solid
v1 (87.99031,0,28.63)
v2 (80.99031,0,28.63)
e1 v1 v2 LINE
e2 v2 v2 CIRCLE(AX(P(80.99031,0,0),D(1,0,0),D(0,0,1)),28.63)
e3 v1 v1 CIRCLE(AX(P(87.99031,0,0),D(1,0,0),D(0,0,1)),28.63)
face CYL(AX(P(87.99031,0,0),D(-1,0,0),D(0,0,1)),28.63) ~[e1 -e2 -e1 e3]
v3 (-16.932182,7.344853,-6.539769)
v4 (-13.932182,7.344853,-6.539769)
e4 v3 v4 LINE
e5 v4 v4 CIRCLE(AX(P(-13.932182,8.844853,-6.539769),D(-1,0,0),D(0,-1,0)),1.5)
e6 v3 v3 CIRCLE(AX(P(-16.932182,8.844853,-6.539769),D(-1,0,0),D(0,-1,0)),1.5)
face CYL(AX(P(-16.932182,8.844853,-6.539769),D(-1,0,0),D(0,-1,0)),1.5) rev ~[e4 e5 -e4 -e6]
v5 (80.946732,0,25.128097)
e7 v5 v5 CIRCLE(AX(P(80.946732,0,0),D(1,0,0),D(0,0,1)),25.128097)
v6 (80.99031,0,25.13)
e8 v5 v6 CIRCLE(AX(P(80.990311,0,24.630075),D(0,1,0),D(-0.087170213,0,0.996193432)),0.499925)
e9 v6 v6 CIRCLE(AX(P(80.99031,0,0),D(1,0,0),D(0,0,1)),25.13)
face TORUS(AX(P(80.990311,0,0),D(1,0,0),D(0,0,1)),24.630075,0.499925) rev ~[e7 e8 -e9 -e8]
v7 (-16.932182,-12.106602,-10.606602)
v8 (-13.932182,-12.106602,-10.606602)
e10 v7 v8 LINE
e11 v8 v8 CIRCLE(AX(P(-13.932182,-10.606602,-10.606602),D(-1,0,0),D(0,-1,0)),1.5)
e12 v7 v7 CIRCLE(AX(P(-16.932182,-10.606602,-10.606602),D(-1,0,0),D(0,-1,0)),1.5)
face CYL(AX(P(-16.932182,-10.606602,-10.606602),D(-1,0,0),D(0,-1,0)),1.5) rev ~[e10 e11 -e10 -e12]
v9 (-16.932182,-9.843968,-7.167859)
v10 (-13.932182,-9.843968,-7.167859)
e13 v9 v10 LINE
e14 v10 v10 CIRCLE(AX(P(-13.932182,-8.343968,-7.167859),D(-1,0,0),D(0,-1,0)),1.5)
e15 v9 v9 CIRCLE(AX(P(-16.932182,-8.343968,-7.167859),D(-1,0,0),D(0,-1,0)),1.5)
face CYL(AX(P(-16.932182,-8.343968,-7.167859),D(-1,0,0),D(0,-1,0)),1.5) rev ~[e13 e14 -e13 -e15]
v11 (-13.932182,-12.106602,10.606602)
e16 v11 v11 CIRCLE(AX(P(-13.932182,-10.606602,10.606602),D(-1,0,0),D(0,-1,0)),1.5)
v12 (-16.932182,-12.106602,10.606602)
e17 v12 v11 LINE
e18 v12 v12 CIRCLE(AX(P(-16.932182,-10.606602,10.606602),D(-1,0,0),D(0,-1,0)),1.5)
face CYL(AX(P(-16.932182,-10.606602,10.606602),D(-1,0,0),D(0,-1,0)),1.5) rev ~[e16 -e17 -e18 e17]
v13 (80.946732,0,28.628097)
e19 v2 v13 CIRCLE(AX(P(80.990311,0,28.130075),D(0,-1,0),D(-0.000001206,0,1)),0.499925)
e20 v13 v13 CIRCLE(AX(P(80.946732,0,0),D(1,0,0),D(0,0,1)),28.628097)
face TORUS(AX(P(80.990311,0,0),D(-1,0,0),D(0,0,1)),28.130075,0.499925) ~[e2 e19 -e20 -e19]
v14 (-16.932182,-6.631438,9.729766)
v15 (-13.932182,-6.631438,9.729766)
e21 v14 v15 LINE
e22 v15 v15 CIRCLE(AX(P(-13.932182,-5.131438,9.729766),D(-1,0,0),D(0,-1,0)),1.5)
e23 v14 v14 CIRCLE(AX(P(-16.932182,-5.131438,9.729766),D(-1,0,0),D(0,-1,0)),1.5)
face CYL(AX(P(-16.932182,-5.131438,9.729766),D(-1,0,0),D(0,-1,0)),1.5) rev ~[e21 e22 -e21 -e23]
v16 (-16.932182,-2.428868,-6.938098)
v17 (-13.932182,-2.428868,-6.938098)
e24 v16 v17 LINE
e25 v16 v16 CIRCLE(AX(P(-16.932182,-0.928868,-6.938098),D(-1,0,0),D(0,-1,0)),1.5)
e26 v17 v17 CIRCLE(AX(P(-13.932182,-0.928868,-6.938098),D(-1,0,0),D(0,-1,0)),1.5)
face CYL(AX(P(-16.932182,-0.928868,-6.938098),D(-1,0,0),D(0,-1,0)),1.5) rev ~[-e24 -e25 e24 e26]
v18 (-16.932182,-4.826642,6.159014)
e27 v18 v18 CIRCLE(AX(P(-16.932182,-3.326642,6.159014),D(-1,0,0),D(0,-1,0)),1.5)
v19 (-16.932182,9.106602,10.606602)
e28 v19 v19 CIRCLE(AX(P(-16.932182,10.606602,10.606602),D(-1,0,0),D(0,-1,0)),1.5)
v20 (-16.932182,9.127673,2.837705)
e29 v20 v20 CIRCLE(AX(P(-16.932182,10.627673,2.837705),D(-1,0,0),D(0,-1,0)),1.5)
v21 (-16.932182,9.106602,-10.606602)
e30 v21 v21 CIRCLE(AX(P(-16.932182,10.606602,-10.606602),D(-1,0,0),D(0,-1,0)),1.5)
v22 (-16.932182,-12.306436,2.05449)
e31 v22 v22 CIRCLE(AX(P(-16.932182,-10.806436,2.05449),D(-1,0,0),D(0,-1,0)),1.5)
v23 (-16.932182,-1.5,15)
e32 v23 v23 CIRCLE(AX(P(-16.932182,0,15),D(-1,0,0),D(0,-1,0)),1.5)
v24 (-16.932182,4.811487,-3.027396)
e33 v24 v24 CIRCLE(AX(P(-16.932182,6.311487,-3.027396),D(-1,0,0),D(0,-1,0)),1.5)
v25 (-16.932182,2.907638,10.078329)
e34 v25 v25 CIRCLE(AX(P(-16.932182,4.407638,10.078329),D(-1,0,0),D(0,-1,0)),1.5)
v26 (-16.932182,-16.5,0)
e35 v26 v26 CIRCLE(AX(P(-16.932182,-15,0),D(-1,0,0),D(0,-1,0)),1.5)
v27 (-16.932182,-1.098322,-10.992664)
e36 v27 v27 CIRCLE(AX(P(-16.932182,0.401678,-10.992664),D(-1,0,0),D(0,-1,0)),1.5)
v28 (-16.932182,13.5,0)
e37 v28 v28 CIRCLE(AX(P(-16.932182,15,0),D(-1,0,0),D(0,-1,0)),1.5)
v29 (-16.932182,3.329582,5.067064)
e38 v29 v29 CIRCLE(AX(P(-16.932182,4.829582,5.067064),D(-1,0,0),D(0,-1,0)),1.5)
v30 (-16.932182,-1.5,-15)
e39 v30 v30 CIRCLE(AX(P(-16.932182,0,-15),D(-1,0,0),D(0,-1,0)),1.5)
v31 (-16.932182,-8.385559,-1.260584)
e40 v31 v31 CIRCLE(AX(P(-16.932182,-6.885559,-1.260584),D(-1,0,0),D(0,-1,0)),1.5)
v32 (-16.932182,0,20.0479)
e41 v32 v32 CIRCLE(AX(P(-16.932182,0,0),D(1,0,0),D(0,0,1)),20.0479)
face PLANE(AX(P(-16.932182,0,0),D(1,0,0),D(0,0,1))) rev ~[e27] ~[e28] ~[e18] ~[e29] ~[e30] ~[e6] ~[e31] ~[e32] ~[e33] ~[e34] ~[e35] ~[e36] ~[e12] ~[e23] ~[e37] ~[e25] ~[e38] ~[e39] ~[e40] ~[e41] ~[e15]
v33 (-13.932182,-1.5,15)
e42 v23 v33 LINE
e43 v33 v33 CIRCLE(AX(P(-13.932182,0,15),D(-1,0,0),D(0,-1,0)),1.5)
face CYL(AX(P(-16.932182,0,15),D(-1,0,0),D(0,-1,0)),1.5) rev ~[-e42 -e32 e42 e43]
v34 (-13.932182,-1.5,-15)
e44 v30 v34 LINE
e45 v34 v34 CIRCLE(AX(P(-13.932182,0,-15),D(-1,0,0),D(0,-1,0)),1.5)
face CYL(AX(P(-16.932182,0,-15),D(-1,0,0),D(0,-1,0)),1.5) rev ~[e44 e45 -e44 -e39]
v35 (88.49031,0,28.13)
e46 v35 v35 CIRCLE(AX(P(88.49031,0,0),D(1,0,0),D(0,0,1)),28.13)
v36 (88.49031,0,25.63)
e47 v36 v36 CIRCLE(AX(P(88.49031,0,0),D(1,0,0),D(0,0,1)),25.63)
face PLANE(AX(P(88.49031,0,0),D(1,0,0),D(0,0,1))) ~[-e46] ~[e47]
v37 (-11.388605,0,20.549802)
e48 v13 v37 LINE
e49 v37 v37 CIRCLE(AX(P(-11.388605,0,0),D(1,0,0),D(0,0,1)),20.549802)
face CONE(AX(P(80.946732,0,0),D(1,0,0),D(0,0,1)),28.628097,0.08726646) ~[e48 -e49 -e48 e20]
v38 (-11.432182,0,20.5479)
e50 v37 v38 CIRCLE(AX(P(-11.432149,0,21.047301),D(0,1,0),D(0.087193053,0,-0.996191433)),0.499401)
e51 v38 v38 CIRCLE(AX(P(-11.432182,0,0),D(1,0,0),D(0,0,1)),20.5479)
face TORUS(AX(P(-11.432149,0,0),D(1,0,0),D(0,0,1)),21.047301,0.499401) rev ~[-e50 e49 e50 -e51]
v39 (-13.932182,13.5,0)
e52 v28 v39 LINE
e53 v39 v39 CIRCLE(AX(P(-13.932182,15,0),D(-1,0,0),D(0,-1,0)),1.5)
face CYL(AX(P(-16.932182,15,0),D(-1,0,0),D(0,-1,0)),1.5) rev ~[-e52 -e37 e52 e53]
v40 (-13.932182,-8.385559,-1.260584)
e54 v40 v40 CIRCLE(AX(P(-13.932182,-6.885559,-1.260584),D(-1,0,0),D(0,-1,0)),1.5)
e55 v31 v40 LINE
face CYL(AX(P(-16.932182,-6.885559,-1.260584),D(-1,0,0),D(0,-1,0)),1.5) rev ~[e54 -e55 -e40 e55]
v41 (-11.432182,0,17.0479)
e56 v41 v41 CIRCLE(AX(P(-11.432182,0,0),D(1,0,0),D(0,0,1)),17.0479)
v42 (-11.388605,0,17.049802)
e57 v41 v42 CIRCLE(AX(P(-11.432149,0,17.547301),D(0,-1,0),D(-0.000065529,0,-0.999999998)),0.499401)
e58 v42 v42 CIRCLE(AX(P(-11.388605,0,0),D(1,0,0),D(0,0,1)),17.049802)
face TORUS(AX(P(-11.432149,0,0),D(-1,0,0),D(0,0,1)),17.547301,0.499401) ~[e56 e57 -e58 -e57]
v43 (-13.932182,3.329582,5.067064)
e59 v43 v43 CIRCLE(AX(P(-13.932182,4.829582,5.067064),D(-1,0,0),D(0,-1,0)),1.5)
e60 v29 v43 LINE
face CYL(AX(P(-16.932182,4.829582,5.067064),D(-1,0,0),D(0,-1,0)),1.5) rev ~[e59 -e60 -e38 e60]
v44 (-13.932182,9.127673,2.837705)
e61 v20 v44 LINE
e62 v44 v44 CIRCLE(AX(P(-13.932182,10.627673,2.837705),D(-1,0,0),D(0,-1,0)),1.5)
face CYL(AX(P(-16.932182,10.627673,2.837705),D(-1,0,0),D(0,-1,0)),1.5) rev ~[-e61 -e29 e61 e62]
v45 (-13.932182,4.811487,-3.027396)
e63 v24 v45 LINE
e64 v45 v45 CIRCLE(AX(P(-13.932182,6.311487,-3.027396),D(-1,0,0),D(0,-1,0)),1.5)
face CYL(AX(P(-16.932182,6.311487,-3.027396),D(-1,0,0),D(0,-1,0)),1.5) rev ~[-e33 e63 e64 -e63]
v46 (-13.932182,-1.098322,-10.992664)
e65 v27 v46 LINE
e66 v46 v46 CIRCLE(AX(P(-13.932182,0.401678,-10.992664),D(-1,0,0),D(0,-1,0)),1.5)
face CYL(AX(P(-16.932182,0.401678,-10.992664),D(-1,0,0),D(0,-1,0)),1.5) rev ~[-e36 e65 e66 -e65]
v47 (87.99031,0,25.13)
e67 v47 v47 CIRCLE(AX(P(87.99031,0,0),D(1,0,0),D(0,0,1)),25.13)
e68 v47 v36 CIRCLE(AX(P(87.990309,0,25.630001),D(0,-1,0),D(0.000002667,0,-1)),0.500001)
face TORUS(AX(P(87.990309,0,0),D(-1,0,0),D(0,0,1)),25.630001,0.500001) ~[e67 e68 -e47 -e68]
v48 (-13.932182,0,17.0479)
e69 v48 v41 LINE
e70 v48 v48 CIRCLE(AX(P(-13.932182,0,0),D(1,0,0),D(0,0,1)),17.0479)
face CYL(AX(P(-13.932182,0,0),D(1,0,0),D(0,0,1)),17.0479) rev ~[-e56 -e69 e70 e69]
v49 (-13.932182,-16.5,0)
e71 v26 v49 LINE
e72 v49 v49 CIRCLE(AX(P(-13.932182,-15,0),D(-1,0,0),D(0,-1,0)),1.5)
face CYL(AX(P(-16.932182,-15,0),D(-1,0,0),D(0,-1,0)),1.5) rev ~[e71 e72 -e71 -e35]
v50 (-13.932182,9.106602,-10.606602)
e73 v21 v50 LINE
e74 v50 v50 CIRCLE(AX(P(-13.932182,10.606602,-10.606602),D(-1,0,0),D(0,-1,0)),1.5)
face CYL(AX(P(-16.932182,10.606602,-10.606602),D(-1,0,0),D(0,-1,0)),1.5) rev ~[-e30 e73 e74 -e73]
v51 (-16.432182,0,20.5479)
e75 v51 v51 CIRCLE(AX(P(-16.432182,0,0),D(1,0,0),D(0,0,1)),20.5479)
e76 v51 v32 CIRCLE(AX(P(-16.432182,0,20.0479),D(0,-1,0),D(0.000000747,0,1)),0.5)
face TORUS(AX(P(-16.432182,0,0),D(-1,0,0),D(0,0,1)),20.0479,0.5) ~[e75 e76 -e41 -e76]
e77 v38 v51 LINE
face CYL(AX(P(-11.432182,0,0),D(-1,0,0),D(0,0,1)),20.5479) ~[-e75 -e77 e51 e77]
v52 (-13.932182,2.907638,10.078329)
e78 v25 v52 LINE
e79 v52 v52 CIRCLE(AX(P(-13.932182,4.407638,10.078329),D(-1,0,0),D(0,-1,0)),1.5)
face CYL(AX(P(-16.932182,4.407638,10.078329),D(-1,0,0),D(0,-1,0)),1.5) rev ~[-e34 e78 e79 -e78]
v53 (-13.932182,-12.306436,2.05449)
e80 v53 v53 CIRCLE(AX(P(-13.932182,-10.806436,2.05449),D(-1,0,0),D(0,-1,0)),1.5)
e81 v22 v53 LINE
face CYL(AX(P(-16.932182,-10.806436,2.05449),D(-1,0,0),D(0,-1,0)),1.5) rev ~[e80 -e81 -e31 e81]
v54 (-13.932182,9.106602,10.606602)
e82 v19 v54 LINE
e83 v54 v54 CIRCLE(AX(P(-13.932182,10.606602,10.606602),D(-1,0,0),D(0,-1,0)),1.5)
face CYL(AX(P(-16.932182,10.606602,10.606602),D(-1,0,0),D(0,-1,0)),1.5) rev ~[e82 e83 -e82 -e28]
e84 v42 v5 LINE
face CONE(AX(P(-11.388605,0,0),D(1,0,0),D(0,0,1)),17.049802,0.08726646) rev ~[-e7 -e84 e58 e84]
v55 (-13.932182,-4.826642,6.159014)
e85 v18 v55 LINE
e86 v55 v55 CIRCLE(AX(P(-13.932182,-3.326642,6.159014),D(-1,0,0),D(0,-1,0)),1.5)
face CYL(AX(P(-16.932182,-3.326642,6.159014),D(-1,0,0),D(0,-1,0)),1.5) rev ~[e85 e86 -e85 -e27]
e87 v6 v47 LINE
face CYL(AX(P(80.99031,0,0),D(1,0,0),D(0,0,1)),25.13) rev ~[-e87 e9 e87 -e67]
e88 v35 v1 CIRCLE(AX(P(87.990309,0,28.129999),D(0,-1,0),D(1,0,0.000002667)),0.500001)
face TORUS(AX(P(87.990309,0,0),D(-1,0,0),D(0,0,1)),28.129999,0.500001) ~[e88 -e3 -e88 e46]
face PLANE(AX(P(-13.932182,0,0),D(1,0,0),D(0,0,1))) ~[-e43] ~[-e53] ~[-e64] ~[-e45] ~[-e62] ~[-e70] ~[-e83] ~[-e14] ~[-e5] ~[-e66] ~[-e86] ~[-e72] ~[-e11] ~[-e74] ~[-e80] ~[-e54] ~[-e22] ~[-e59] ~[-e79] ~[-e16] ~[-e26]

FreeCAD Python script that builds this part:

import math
import FreeCAD as App
import Part
import Sketcher
from FreeCAD import Vector
Q = App.Units.Quantity

doc = App.newDocument("Part")
body = doc.addObject("PartDesign::Body", "Body")

# Sketch on XZ plane
sketch1 = body.newObject("Sketcher::SketchObject", "Sketch")
sketch1.AttachmentSupport = (doc.getObject("XZ_Plane"), [""])
sketch1.MapMode = "FlatFace"
sketch1.addGeometry([
    Part.LineSegment(Vector(-16.932, 20.048, 0), Vector(-16.932, 0, 0)),  # 0
    Part.LineSegment(Vector(-16.932, 0, 0), Vector(-13.932, 0, 0)),  # 1
    Part.LineSegment(Vector(-13.932, 0, 0), Vector(-13.932, 17.048, 0)),  # 2
    Part.LineSegment(Vector(-13.932, 17.048, 0), Vector(-11.432, 17.048, 0)),  # 3
    Part.ArcOfCircle(Part.Circle(Vector(-11.432, 17.547, 0), Vector(0, 0, 1), 0.499), math.radians(-90), math.radians(-85)),  # 4
    Part.LineSegment(Vector(-11.389, 17.05, 0), Vector(80.947, 25.128, 0)),  # 5
    Part.ArcOfCircle(Part.Circle(Vector(80.99, 24.63, 0), Vector(0, 0, 1), 0.5), math.radians(90), math.radians(95)),  # 6
    Part.LineSegment(Vector(80.99, 25.13, 0), Vector(87.99, 25.13, 0)),  # 7
    Part.ArcOfCircle(Part.Circle(Vector(87.99, 25.63, 0), Vector(0, 0, 1), 0.5), math.radians(-90), math.radians(0)),  # 8
    Part.LineSegment(Vector(88.49, 25.63, 0), Vector(88.49, 28.13, 0)),  # 9
    Part.ArcOfCircle(Part.Circle(Vector(87.99, 28.13, 0), Vector(0, 0, 1), 0.5), math.radians(0), math.radians(90)),  # 10
    Part.LineSegment(Vector(87.99, 28.63, 0), Vector(80.99, 28.63, 0)),  # 11
    Part.ArcOfCircle(Part.Circle(Vector(80.99, 28.13, 0), Vector(0, 0, 1), 0.5), math.radians(90), math.radians(95)),  # 12
    Part.LineSegment(Vector(80.947, 28.628, 0), Vector(-11.389, 20.55, 0)),  # 13
    Part.ArcOfCircle(Part.Circle(Vector(-11.432, 21.047, 0), Vector(0, 0, 1), 0.499), math.radians(-90), math.radians(-85)),  # 14
    Part.LineSegment(Vector(-11.432, 20.548, 0), Vector(-16.432, 20.548, 0)),  # 15
    Part.ArcOfCircle(Part.Circle(Vector(-16.432, 20.048, 0), Vector(0, 0, 1), 0.5), math.radians(90), math.radians(180)),  # 16
], False)
sketch1.addConstraint([
    Sketcher.Constraint("Coincident", 0, 2, 1, 1),
    Sketcher.Constraint("Coincident", 1, 2, 2, 1),
    Sketcher.Constraint("Coincident", 2, 2, 3, 1),
    Sketcher.Constraint("Coincident", 3, 2, 4, 1),
    Sketcher.Constraint("Coincident", 4, 2, 5, 1),
    Sketcher.Constraint("Coincident", 5, 2, 6, 2),
    Sketcher.Constraint("Tangent", 6, 1, 7, 1),
    Sketcher.Constraint("Coincident", 7, 2, 8, 1),
    Sketcher.Constraint("Coincident", 8, 2, 9, 1),
    Sketcher.Constraint("Coincident", 9, 2, 10, 1),
    Sketcher.Constraint("Coincident", 10, 2, 11, 1),
    Sketcher.Constraint("Tangent", 11, 2, 12, 1),
    Sketcher.Constraint("Coincident", 12, 2, 13, 1),
    Sketcher.Constraint("Coincident", 13, 2, 14, 2),
    Sketcher.Constraint("Coincident", 14, 1, 15, 1),
    Sketcher.Constraint("Tangent", 15, 2, 16, 1),
    Sketcher.Constraint("Tangent", 16, 2, 0, 1),
    Sketcher.Constraint("Vertical", 0),
    Sketcher.Constraint("Horizontal", 1),
    Sketcher.Constraint("Vertical", 2),
    Sketcher.Constraint("Horizontal", 3),
    Sketcher.Constraint("Horizontal", 7),
    Sketcher.Constraint("Vertical", 9),
    Sketcher.Constraint("Horizontal", 11),
    Sketcher.Constraint("Horizontal", 15),
    Sketcher.Constraint("Equal", 8, 10),
    Sketcher.Constraint("Equal", 6, 12),
    Sketcher.Constraint("Equal", 4, 14),
    Sketcher.Constraint("Equal", 10, 16),
    Sketcher.Constraint("PointOnObject", 0, 2, -1),
    Sketcher.Constraint("Parallel", 5, 13),
    Sketcher.Constraint("Horizontal", 10, 3, 9, 2),
    Sketcher.Constraint("Vertical", 6, 3, 12, 3),
    Sketcher.Constraint("Vertical", 4, 3, 14, 3),
    Sketcher.Constraint("Vertical", 10, 3, 7, 2),
    Sketcher.Constraint("Vertical", 7, 2, 10, 2),
    Sketcher.Constraint("Vertical", 5, 2, 12, 2),
    Sketcher.Constraint("Vertical", 4, 2, 13, 2),
    Sketcher.Constraint("Vertical", 3, 2, 14, 1),
    Sketcher.Constraint("Equal", 3, 9),
    Sketcher.Constraint("Radius", 8, Q("0.500001 mm")),
    Sketcher.Constraint("DistanceX", 1, 1, 1, 2, Q("3 mm")),
    Sketcher.Constraint("DistanceX", 7, 1, 7, 2, Q("7 mm")),
    Sketcher.Constraint("DistanceX", 15, 2, 15, 1, Q("5 mm")),
    Sketcher.Constraint("Angle", 5, Q("5 deg")),
    Sketcher.Constraint("DistanceY", 2, 2, 16, 3, Q("3 mm")),
    Sketcher.Constraint("Radius", 4, Q("0.499401 mm")),
    Sketcher.Constraint("DistanceY", -1, 1, 8, 3, Q("25.630001 mm")),
    Sketcher.Constraint("DistanceY", 0, 2, 0, 1, Q("20.0479 mm")),
    Sketcher.Constraint("Radius", 6, Q("0.499925 mm")),
    Sketcher.Constraint("DistanceY", -1, 1, 13, 2, Q("20.549802 mm")),
    Sketcher.Constraint("DistanceY", 5, 2, 10, 3, Q("3.001902 mm")),
    Sketcher.Constraint("DistanceX", 4, 3, -1, 1, Q("11.432149 mm")),
    Sketcher.Constraint("DistanceX", 1, 2, -1, 1, Q("13.932182 mm")),
])
revolution = body.newObject("PartDesign::Revolution", "Revolution")
revolution.Profile = sketch1
revolution.ReferenceAxis = (sketch1, ["H_Axis"])
revolution.Angle = 360

# Sketch on YZ plane
sketch2 = body.newObject("Sketcher::SketchObject", "Sketch001")
sketch2.AttachmentSupport = (doc.getObject("YZ_Plane"), [""])
sketch2.MapMode = "FlatFace"
sketch2.AttachmentOffset = App.Placement(Vector(0, 0, -16.932182), App.Rotation())
sketch2.addGeometry([
    Part.Circle(Vector(0, 15, 0), Vector(0, 0, 1), 1.5),  # 0
    Part.Circle(Vector(10.6, 10.6, 0), Vector(0, 0, 1), 1.5),  # 1
    Part.Circle(Vector(15, 0, 0), Vector(0, 0, 1), 1.5),  # 2
    Part.Circle(Vector(10.6, -10.6, 0), Vector(0, 0, 1), 1.5),  # 3
    Part.Circle(Vector(0, -15, 0), Vector(0, 0, 1), 1.5),  # 4
    Part.Circle(Vector(-10.6, -10.6, 0), Vector(0, 0, 1), 1.5),  # 5
    Part.Circle(Vector(-15, 0, 0), Vector(0, 0, 1), 1.5),  # 6
    Part.Circle(Vector(-10.6, 10.6, 0), Vector(0, 0, 1), 1.5),  # 7
    Part.Circle(Vector(4.4, 10.1, 0), Vector(0, 0, 1), 1.5),  # 8
    Part.Circle(Vector(10.6, 2.8, 0), Vector(0, 0, 1), 1.5),  # 9
    Part.Circle(Vector(8.8, -6.5, 0), Vector(0, 0, 1), 1.5),  # 10
    Part.Circle(Vector(0.4, -11, 0), Vector(0, 0, 1), 1.5),  # 11
    Part.Circle(Vector(-8.3, -7.2, 0), Vector(0, 0, 1), 1.5),  # 12
    Part.Circle(Vector(-10.8, 2.1, 0), Vector(0, 0, 1), 1.5),  # 13
    Part.Circle(Vector(-5.1, 9.7, 0), Vector(0, 0, 1), 1.5),  # 14
    Part.Circle(Vector(4.8, 5.1, 0), Vector(0, 0, 1), 1.5),  # 15
    Part.Circle(Vector(6.3, -3, 0), Vector(0, 0, 1), 1.5),  # 16
    Part.Circle(Vector(-0.9, -6.9, 0), Vector(0, 0, 1), 1.5),  # 17
    Part.Circle(Vector(-6.9, -1.3, 0), Vector(0, 0, 1), 1.5),  # 18
    Part.Circle(Vector(-3.3, 6.2, 0), Vector(0, 0, 1), 1.5),  # 19
], False)
sketch2.addConstraint([
    Sketcher.Constraint("Equal", 0, 1),
    Sketcher.Constraint("Equal", 1, 2),
    Sketcher.Constraint("Equal", 2, 3),
    Sketcher.Constraint("Equal", 3, 4),
    Sketcher.Constraint("Equal", 4, 5),
    Sketcher.Constraint("Equal", 5, 6),
    Sketcher.Constraint("Equal", 6, 7),
    Sketcher.Constraint("Equal", 7, 8),
    Sketcher.Constraint("Equal", 8, 9),
    Sketcher.Constraint("Equal", 9, 10),
    Sketcher.Constraint("Equal", 10, 11),
    Sketcher.Constraint("Equal", 11, 12),
    Sketcher.Constraint("Equal", 12, 13),
    Sketcher.Constraint("Equal", 13, 14),
    Sketcher.Constraint("Equal", 14, 15),
    Sketcher.Constraint("Equal", 15, 16),
    Sketcher.Constraint("Equal", 16, 17),
    Sketcher.Constraint("Equal", 17, 18),
    Sketcher.Constraint("Equal", 18, 19),
    Sketcher.Constraint("Symmetric", 0, 3, 4, 3, -1, 1),
    Sketcher.Constraint("Symmetric", 1, 3, 5, 3, -1, 1),
    Sketcher.Constraint("Symmetric", 2, 3, 6, 3, -1, 1),
    Sketcher.Constraint("Symmetric", 3, 3, 7, 3, -1, 1),
    Sketcher.Constraint("Symmetric", 3, 3, 5, 3, -2),
    Sketcher.Constraint("PointOnObject", 0, 3, -2),
    Sketcher.Constraint("PointOnObject", 2, 3, -1),
    Sketcher.Constraint("Diameter", 0, Q("3 mm")),
    Sketcher.Constraint("DistanceY", -1, 1, 0, 3, Q("15 mm")),
    Sketcher.Constraint("DistanceX", -1, 1, 2, 3, Q("15 mm")),
    Sketcher.Constraint("DistanceY", 10, 3, 8, 3, Q("16.618098 mm")),
    Sketcher.Constraint("DistanceY", 15, 3, 14, 3, Q("4.662702 mm")),
    Sketcher.Constraint("DistanceY", 16, 3, 9, 3, Q("5.865101 mm")),
    Sketcher.Constraint("DistanceX", 12, 3, 17, 3, Q("7.4151 mm")),
    Sketcher.Constraint("DistanceX", -1, 1, 8, 3, Q("4.407638 mm")),
    Sketcher.Constraint("DistanceY", -1, 1, 8, 3, Q("10.078329 mm")),
    Sketcher.Constraint("DistanceY", 12, 3, -1, 1, Q("7.167859 mm")),
    Sketcher.Constraint("DistanceY", -1, 1, 13, 3, Q("2.05449 mm")),
    Sketcher.Constraint("DistanceX", 14, 3, -1, 1, Q("5.131438 mm")),
    Sketcher.Constraint("DistanceX", 17, 3, -1, 1, Q("0.928868 mm")),
    Sketcher.Constraint("DistanceX", 18, 3, -1, 1, Q("6.885559 mm")),
    Sketcher.Constraint("DistanceX", 7, 3, 8, 3, Q("15.01424 mm")),
    Sketcher.Constraint("DistanceY", 3, 3, 8, 3, Q("20.684931 mm")),
    Sketcher.Constraint("DistanceX", 1, 3, 9, 3, Q("0.021071 mm")),
    Sketcher.Constraint("DistanceX", 10, 3, 3, 3, Q("1.761749 mm")),
    Sketcher.Constraint("DistanceY", 11, 3, 3, 3, Q("0.386062 mm")),
    Sketcher.Constraint("DistanceX", 5, 3, 11, 3, Q("11.00828 mm")),
    Sketcher.Constraint("DistanceY", 11, 3, 9, 3, Q("13.830369 mm")),
    Sketcher.Constraint("DistanceX", 15, 3, 9, 3, Q("5.798091 mm")),
    Sketcher.Constraint("DistanceY", 9, 3, 15, 3, Q("2.229359 mm")),
    Sketcher.Constraint("DistanceY", 12, 3, 17, 3, Q("0.229761 mm")),
    Sketcher.Constraint("DistanceY", 5, 3, 18, 3, Q("9.346018 mm")),
    Sketcher.Constraint("DistanceY", 19, 3, 14, 3, Q("3.570752 mm")),
    Sketcher.Constraint("DistanceX", 7, 3, 19, 3, Q("7.27996 mm")),
    Sketcher.Constraint("DistanceX", 13, 3, -1, 1, Q("10.806436 mm")),
    Sketcher.Constraint("DistanceX", -1, 1, 16, 3, Q("6.311487 mm")),
])
pocket1 = body.newObject("PartDesign::Pocket", "Pocket")
pocket1.Profile = sketch2
pocket1.Length = 25
pocket1.Reversed = True

doc.recompute()
